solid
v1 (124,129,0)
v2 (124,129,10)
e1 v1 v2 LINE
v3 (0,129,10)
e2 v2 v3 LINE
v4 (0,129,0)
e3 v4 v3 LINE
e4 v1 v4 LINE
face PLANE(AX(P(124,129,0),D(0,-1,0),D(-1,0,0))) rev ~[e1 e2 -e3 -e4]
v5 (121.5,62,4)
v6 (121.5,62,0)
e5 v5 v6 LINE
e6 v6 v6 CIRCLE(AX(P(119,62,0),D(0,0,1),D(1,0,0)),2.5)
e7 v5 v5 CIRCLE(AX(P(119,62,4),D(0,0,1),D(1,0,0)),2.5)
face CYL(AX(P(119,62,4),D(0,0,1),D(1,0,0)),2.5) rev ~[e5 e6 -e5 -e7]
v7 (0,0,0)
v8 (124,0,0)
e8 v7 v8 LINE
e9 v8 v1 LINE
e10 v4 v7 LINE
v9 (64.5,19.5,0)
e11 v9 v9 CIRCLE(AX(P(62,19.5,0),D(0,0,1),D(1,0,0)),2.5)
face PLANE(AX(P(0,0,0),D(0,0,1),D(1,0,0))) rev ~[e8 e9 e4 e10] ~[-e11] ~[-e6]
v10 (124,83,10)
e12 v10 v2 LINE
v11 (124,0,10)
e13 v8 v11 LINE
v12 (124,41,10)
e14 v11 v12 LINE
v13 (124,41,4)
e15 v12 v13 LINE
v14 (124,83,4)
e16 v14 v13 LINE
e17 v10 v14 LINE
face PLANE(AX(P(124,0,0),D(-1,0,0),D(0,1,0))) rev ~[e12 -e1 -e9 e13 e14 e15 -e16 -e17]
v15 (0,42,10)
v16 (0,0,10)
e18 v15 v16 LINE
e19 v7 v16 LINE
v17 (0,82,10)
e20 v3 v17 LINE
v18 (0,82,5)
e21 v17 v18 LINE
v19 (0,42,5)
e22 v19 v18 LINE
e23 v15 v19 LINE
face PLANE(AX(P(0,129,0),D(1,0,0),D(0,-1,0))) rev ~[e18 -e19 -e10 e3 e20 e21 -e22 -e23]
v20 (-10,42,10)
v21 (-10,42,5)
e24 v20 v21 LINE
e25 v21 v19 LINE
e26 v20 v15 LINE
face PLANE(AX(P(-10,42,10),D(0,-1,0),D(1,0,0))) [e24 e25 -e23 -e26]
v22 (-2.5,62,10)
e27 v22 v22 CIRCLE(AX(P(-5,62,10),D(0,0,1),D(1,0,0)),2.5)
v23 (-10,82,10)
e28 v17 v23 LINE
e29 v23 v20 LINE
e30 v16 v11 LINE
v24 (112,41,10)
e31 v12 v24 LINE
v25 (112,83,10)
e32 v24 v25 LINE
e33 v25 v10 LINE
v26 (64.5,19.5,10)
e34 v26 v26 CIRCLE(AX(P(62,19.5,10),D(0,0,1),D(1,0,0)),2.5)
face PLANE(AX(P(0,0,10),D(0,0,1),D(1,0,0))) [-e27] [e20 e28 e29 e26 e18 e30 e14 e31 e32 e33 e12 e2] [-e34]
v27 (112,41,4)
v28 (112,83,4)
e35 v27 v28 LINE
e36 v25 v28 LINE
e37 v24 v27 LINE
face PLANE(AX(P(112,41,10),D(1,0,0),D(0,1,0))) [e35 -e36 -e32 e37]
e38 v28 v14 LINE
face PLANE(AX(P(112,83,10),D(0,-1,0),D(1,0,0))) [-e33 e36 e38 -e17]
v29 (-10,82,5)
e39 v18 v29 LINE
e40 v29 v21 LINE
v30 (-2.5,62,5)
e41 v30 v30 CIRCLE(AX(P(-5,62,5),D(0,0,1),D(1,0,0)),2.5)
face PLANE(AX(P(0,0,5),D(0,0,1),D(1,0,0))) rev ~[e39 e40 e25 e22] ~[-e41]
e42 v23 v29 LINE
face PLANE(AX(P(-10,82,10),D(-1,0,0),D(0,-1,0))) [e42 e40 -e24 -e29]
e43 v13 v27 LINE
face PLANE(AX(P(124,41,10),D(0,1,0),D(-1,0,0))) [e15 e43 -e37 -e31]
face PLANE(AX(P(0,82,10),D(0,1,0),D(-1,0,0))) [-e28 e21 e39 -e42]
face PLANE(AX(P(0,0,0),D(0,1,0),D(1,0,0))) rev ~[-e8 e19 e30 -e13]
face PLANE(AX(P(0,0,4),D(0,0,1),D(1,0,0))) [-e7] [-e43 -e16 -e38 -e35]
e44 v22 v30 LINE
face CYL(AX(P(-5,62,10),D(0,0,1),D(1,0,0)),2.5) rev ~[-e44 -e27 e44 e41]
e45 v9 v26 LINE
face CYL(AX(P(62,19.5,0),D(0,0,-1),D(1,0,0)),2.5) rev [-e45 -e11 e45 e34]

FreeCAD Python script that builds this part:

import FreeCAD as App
import Part
import Sketcher

doc = App.newDocument("Part")
body = doc.addObject("PartDesign::Body", "Body")

# Sketch on XY plane
sketch1 = doc.addObject("Sketcher::SketchObject", "Sketch")
body.addObject(sketch1)
sketch1.AttachmentSupport = (doc.XY_Plane, [""])
sketch1.MapMode = "FlatFace"
sketch1.addGeometry([
    Part.LineSegment(App.Vector(0, 129, 0), App.Vector(0, 0, 0)),  # 0
    Part.LineSegment(App.Vector(0, 0, 0), App.Vector(124, 0, 0)),  # 1
    Part.LineSegment(App.Vector(124, 0, 0), App.Vector(124, 129, 0)),  # 2
    Part.LineSegment(App.Vector(124, 129, 0), App.Vector(0, 129, 0)),  # 3
    Part.Circle(App.Vector(62, 19.5, 0), App.Vector(0, 0, 1), 2.5),  # 4
], False)
sketch1.addConstraint([
    Sketcher.Constraint("Coincident", 0, 2, 1, 1),
    Sketcher.Constraint("Coincident", 1, 2, 2, 1),
    Sketcher.Constraint("Coincident", 2, 2, 3, 1),
    Sketcher.Constraint("Coincident", 3, 2, 0, 1),
    Sketcher.Constraint("Vertical", 0),
    Sketcher.Constraint("Horizontal", 1),
    Sketcher.Constraint("Vertical", 2),
    Sketcher.Constraint("Horizontal", 3),
    Sketcher.Constraint("Coincident", 0, 2, -1, 1),
    Sketcher.Constraint("Diameter", 4, 5.0),
    Sketcher.Constraint("DistanceX", 1, 1, 1, 2, 124.0),
    Sketcher.Constraint("DistanceY", 0, 2, 0, 1, 129.0),
    Sketcher.Constraint("DistanceY", -1, 1, 4, 3, 19.5),
    Sketcher.Constraint("DistanceX", -1, 1, 4, 3, 62.0),
])
pad1 = doc.addObject("PartDesign::Pad", "Pad")
body.addObject(pad1)
pad1.Profile = sketch1
pad1.Length = 10

# Sketch on XY plane
sketch2 = doc.addObject("Sketcher::SketchObject", "Sketch001")
body.addObject(sketch2)
sketch2.AttachmentSupport = (doc.XY_Plane, [""])
sketch2.MapMode = "FlatFace"
sketch2.AttachmentOffset = App.Placement(App.Vector(0, 0, 10), App.Rotation())
sketch2.addGeometry([
    Part.LineSegment(App.Vector(0, 42, 0), App.Vector(0, 82, 0)),  # 0
    Part.LineSegment(App.Vector(0, 82, 0), App.Vector(-10, 82, 0)),  # 1
    Part.LineSegment(App.Vector(-10, 82, 0), App.Vector(-10, 42, 0)),  # 2
    Part.LineSegment(App.Vector(-10, 42, 0), App.Vector(0, 42, 0)),  # 3
    Part.Circle(App.Vector(-5, 62, 0), App.Vector(0, 0, 1), 2.5),  # 4
], False)
sketch2.addConstraint([
    Sketcher.Constraint("Coincident", 0, 2, 1, 1),
    Sketcher.Constraint("Coincident", 1, 2, 2, 1),
    Sketcher.Constraint("Coincident", 2, 2, 3, 1),
    Sketcher.Constraint("Coincident", 3, 2, 0, 1),
    Sketcher.Constraint("Vertical", 0),
    Sketcher.Constraint("Horizontal", 1),
    Sketcher.Constraint("Vertical", 2),
    Sketcher.Constraint("Horizontal", 3),
    Sketcher.Constraint("PointOnObject", 0, 2, -2),
    Sketcher.Constraint("Diameter", 4, 5.0),
    Sketcher.Constraint("DistanceX", 1, 2, 1, 1, 10.0),
    Sketcher.Constraint("DistanceY", 0, 1, 0, 2, 40.0),
    Sketcher.Constraint("DistanceX", 4, 3, -1, 1, 5.0),
    Sketcher.Constraint("DistanceY", -1, 1, 4, 3, 62.0),
    Sketcher.Constraint("DistanceY", -1, 1, 0, 2, 82.0),
])
pad2 = doc.addObject("PartDesign::Pad", "Pad001")
body.addObject(pad2)
pad2.Profile = sketch2
pad2.Length = 5
pad2.Reversed = True

# Sketch on XY plane
sketch3 = doc.addObject("Sketcher::SketchObject", "Sketch002")
body.addObject(sketch3)
sketch3.AttachmentSupport = (doc.XY_Plane, [""])
sketch3.MapMode = "FlatFace"
sketch3.AttachmentOffset = App.Placement(App.Vector(0, 0, 10), App.Rotation())
sketch3.addGeometry([
    Part.LineSegment(App.Vector(112, 41, 0), App.Vector(124, 41, 0)),
    Part.LineSegment(App.Vector(124, 41, 0), App.Vector(124, 83, 0)),
    Part.LineSegment(App.Vector(124, 83, 0), App.Vector(112, 83, 0)),
    Part.LineSegment(App.Vector(112, 83, 0), App.Vector(112, 41, 0)),
], False)
sketch3.addConstraint([
    Sketcher.Constraint("Coincident", 0, 2, 1, 1),
    Sketcher.Constraint("Coincident", 1, 2, 2, 1),
    Sketcher.Constraint("Coincident", 2, 2, 3, 1),
    Sketcher.Constraint("Coincident", 3, 2, 0, 1),
    Sketcher.Constraint("Horizontal", 0),
    Sketcher.Constraint("Vertical", 1),
    Sketcher.Constraint("Horizontal", 2),
    Sketcher.Constraint("Vertical", 3),
    Sketcher.Constraint("DistanceX", 0, 1, 0, 2, 12.0),
    Sketcher.Constraint("DistanceY", 1, 1, 1, 2, 42.0),
    Sketcher.Constraint("DistanceX", -1, 1, 0, 2, 124.0),
    Sketcher.Constraint("DistanceY", -1, 1, 0, 2, 41.0),
])
pocket1 = doc.addObject("PartDesign::Pocket", "Pocket")
body.addObject(pocket1)
pocket1.Profile = sketch3
pocket1.Length = 6

# Sketch on XY plane
sketch4 = doc.addObject("Sketcher::SketchObject", "Sketch003")
body.addObject(sketch4)
sketch4.AttachmentSupport = (doc.XY_Plane, [""])
sketch4.MapMode = "FlatFace"
sketch4.AttachmentOffset = App.Placement(App.Vector(0, 0, 4), App.Rotation())
sketch4.addGeometry(Part.Circle(App.Vector(119, 62, 0), App.Vector(0, 0, 1), 2.5), False)
sketch4.addConstraint([
    Sketcher.Constraint("Diameter", 0, 5.0),
    Sketcher.Constraint("DistanceX", -1, 1, 0, 3, 119.0),
    Sketcher.Constraint("DistanceY", -1, 1, 0, 3, 62.0),
])
pocket2 = doc.addObject("PartDesign::Pocket", "Pocket001")
body.addObject(pocket2)
pocket2.Profile = sketch4
pocket2.Type = "ThroughAll"

doc.recompute()
